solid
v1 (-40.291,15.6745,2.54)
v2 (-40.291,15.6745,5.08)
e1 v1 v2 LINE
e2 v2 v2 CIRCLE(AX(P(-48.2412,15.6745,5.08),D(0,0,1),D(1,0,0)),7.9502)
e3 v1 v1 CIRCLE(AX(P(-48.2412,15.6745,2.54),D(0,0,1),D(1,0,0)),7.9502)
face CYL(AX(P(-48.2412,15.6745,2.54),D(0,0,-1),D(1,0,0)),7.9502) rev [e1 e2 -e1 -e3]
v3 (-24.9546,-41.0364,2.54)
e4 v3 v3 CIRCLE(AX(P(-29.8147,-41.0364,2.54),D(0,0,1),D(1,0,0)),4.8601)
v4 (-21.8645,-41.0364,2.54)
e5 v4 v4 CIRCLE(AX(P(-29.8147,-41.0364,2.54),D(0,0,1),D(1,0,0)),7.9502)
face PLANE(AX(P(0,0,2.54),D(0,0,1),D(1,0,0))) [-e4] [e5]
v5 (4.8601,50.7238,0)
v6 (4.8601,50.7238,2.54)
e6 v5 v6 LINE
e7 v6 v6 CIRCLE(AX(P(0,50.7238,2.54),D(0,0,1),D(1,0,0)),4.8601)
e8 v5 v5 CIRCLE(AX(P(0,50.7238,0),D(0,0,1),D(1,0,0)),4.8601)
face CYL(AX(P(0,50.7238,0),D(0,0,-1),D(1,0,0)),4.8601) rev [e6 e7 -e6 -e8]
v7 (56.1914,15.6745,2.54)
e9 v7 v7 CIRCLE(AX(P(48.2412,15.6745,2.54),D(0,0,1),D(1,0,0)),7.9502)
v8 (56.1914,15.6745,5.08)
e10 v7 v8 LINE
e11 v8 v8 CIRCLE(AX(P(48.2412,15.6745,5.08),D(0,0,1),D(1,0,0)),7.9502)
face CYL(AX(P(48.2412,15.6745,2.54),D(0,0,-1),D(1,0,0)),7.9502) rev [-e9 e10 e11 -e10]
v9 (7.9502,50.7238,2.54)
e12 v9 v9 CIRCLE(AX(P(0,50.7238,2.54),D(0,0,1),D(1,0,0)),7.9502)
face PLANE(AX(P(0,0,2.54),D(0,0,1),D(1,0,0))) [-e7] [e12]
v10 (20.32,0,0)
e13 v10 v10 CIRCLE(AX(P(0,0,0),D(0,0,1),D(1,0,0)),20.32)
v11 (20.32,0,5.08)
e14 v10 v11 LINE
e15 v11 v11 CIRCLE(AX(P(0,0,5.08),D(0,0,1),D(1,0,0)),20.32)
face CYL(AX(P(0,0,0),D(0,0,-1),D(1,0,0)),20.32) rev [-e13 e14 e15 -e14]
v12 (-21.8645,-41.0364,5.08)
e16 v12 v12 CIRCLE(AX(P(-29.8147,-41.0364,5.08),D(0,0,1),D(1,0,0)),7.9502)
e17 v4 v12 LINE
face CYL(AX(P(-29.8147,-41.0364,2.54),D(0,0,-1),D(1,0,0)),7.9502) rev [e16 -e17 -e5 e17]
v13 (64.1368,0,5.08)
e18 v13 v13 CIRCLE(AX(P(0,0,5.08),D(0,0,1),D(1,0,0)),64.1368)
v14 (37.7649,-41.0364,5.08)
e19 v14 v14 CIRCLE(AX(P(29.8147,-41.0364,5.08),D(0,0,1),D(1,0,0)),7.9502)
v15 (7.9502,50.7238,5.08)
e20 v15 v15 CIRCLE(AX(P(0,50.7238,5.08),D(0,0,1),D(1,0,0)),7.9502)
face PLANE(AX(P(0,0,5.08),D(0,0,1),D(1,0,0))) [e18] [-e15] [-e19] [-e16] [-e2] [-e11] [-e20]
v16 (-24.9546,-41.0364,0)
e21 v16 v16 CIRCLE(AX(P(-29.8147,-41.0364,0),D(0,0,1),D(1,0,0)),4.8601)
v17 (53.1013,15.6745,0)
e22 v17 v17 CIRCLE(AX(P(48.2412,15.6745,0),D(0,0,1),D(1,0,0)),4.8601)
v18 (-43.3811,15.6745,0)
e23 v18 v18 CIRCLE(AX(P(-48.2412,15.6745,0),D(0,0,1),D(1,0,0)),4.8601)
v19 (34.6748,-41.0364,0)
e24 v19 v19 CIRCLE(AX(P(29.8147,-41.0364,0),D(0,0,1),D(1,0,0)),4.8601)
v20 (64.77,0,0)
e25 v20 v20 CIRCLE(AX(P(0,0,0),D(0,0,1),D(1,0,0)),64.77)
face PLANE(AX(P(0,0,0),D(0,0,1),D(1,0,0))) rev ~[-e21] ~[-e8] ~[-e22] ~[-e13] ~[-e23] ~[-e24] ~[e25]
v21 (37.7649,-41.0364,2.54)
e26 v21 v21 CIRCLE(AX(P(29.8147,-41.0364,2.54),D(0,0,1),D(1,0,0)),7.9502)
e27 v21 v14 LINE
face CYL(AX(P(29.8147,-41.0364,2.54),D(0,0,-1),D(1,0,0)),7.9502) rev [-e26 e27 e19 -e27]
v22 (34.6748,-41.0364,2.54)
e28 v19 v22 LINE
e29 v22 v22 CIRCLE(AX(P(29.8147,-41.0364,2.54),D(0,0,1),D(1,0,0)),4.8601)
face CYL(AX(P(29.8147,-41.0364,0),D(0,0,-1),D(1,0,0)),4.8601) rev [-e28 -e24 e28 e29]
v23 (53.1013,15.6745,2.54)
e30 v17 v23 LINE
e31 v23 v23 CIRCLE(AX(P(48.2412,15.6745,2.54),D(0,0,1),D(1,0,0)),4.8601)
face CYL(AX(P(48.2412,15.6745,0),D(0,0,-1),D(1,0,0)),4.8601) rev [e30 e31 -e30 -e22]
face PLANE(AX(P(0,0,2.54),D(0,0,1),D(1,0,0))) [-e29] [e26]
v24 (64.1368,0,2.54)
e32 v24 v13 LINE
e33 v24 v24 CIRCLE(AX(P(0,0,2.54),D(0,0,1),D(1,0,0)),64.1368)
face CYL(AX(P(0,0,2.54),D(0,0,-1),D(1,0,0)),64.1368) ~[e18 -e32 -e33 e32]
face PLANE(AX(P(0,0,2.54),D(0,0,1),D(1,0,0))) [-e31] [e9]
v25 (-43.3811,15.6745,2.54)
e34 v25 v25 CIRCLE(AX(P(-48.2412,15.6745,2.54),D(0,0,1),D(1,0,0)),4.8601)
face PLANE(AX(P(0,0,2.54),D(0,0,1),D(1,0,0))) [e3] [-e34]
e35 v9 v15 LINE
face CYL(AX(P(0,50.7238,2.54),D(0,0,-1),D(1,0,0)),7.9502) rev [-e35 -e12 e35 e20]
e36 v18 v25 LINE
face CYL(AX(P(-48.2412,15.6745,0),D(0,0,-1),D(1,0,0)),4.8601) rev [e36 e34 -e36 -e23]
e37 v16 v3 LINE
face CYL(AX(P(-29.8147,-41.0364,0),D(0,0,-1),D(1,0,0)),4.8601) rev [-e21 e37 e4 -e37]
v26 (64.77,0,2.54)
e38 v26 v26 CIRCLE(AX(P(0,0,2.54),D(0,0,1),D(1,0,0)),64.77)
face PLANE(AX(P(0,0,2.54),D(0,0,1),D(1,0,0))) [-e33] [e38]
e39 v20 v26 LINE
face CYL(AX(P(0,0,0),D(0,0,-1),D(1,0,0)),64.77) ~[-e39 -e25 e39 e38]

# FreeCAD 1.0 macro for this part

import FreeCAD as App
import Part
import Sketcher
from FreeCAD import Vector
Q = App.Units.Quantity

doc = App.newDocument("Part")
body = doc.addObject("PartDesign::Body", "Body")

# Sketch on XY plane
sketch1 = body.newObject("Sketcher::SketchObject", "Sketch")
sketch1.AttachmentSupport = (doc.getObject("XY_Plane"), [""])
sketch1.MapMode = "FlatFace"
sketch1.addGeometry([
    Part.Circle(Vector(0, 0, 0), Vector(0, 0, 1), 64.8),  # 0
    Part.Circle(Vector(-29.8, -41, 0), Vector(0, 0, 1), 4.9),  # 1
    Part.Circle(Vector(29.8, -41, 0), Vector(0, 0, 1), 4.9),  # 2
    Part.Circle(Vector(-48.2, 15.7, 0), Vector(0, 0, 1), 4.9),  # 3
    Part.Circle(Vector(0, 0, 0), Vector(0, 0, 1), 20.3),  # 4
    Part.Circle(Vector(48.2, 15.7, 0), Vector(0, 0, 1), 4.9),  # 5
    Part.Circle(Vector(0, 50.7, 0), Vector(0, 0, 1), 4.9),  # 6
], False)
sketch1.addConstraint([
    Sketcher.Constraint("Coincident", 0, 3, -1, 1),
    Sketcher.Constraint("Coincident", 4, 3, -1, 1),
    Sketcher.Constraint("Equal", 1, 2),
    Sketcher.Constraint("Equal", 2, 3),
    Sketcher.Constraint("Equal", 3, 5),
    Sketcher.Constraint("Equal", 5, 6),
    Sketcher.Constraint("Symmetric", 1, 3, 2, 3, -2),
    Sketcher.Constraint("Symmetric", 3, 3, 5, 3, -2),
    Sketcher.Constraint("PointOnObject", 6, 3, -2),
    Sketcher.Constraint("Diameter", 0, Q("5.1 in")),
    Sketcher.Constraint("Diameter", 4, Q("1.6 in")),
    Sketcher.Constraint("DistanceY", -1, 1, 6, 3, Q("1.997 in")),
    Sketcher.Constraint("Diameter", 1, 9.7202),
    Sketcher.Constraint("DistanceX", 1, 3, -1, 1, Q("1.1738 in")),
    Sketcher.Constraint("DistanceY", 1, 3, -1, 1, Q("1.6156 in")),
    Sketcher.Constraint("DistanceY", -1, 1, 3, 3, Q("0.6171 in")),
    Sketcher.Constraint("DistanceX", 3, 3, -1, 1, 48.2412),
])
pad1 = body.newObject("PartDesign::Pad", "Pad")
pad1.Profile = sketch1
pad1.Length = Q("0.1 in")

# Sketch on XY plane
sketch2 = body.newObject("Sketcher::SketchObject", "Sketch001")
sketch2.AttachmentSupport = (doc.getObject("XY_Plane"), [""])
sketch2.MapMode = "FlatFace"
sketch2.AttachmentOffset = App.Placement(Vector(0, 0, 0.1 * 25.4), App.Rotation())
sketch2.addGeometry([
    Part.Circle(Vector(0, 0, 0), Vector(0, 0, 1), 64),  # 0
    Part.Circle(Vector(-30, -41, 0), Vector(0, 0, 1), 8),  # 1
    Part.Circle(Vector(30, -41, 0), Vector(0, 0, 1), 8),  # 2
    Part.Circle(Vector(-48, 16, 0), Vector(0, 0, 1), 8),  # 3
    Part.Circle(Vector(0, 0, 0), Vector(0, 0, 1), 20),  # 4
    Part.Circle(Vector(48, 16, 0), Vector(0, 0, 1), 8),  # 5
    Part.Circle(Vector(0, 51, 0), Vector(0, 0, 1), 8),  # 6
], False)
sketch2.addConstraint([
    Sketcher.Constraint("Coincident", 0, 3, -1, 1),
    Sketcher.Constraint("Coincident", 4, 3, -1, 1),
    Sketcher.Constraint("Equal", 1, 2),
    Sketcher.Constraint("Equal", 2, 3),
    Sketcher.Constraint("Equal", 3, 5),
    Sketcher.Constraint("Equal", 5, 6),
    Sketcher.Constraint("Symmetric", 1, 3, 2, 3, -2),
    Sketcher.Constraint("Symmetric", 3, 3, 5, 3, -2),
    Sketcher.Constraint("PointOnObject", 6, 3, -2),
    Sketcher.Constraint("Diameter", 1, Q("0.626 in")),
    Sketcher.Constraint("Diameter", 4, Q("1.6 in")),
    Sketcher.Constraint("Diameter", 0, 128.2736),
    Sketcher.Constraint("DistanceY", -1, 1, 6, 3, Q("1.997 in")),
    Sketcher.Constraint("DistanceX", 1, 3, -1, 1, Q("1.1738 in")),
    Sketcher.Constraint("DistanceY", 1, 3, -1, 1, Q("1.6156 in")),
    Sketcher.Constraint("DistanceY", -1, 1, 3, 3, Q("0.6171 in")),
    Sketcher.Constraint("DistanceX", 3, 3, -1, 1, 48.2412),
])
pad2 = body.newObject("PartDesign::Pad", "Pad001")
pad2.Profile = sketch2
pad2.Length = Q("0.1 in")

doc.recompute()
